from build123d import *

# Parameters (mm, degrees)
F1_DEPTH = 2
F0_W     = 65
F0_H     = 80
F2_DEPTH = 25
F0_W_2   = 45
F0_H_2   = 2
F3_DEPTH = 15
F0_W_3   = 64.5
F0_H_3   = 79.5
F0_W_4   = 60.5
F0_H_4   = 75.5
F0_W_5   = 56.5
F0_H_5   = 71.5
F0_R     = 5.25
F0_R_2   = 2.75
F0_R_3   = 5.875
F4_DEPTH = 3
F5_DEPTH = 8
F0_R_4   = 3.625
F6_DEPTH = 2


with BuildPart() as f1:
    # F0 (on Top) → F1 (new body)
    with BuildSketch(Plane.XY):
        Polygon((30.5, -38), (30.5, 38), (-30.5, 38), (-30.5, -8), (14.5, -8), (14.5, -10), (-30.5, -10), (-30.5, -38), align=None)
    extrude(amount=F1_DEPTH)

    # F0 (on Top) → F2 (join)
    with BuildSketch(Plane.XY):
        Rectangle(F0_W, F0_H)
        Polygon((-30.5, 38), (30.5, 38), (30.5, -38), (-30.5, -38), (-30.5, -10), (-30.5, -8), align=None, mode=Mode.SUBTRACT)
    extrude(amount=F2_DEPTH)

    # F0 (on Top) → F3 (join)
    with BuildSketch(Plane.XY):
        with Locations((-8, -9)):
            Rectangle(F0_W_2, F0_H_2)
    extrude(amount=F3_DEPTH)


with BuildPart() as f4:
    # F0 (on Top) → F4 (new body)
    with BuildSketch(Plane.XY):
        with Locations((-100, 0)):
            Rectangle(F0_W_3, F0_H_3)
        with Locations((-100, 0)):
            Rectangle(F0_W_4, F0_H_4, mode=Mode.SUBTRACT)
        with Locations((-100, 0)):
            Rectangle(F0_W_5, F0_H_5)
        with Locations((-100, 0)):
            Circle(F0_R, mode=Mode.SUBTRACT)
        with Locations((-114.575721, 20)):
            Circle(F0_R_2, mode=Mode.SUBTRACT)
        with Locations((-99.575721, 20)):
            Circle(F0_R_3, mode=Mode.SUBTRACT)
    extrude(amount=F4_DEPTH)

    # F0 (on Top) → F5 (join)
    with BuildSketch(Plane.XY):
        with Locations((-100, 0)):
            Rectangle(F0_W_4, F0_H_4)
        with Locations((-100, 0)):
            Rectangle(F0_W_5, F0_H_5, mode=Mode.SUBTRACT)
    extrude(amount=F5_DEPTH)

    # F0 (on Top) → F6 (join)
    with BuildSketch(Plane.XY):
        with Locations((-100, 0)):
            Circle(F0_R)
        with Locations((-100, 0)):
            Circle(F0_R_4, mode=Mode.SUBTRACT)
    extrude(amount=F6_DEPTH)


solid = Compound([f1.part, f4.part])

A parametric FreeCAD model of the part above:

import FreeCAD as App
import Part
import Sketcher

V = App.Vector
Q = App.Units.Quantity

doc = App.newDocument("Part")
body = doc.addObject("PartDesign::Body", "Body")

# Sketch on XY plane
sketch1 = doc.addObject("Sketcher::SketchObject", "Sketch")
body.addObject(sketch1)
sketch1.AttachmentSupport = (doc.XY_Plane, [""])
sketch1.MapMode = "FlatFace"
sketch1.addGeometry(Part.LineSegment(V(30.5, -38, 0), V(30.5, 38, 0)), False)
sketch1.addGeometry(Part.LineSegment(V(30.5, 38, 0), V(-30.5, 38, 0)), False)
sketch1.addGeometry(Part.LineSegment(V(-30.5, 38, 0), V(-30.5, -8, 0)), False)
sketch1.addGeometry(Part.LineSegment(V(-30.5, -8, 0), V(14.5, -8, 0)), False)
sketch1.addGeometry(Part.LineSegment(V(14.5, -8, 0), V(14.5, -10, 0)), False)
sketch1.addGeometry(Part.LineSegment(V(14.5, -10, 0), V(-30.5, -10, 0)), False)
sketch1.addGeometry(Part.LineSegment(V(-30.5, -10, 0), V(-30.5, -38, 0)), False)
sketch1.addGeometry(Part.LineSegment(V(-30.5, -38, 0), V(30.5, -38, 0)), False)
sketch1.addConstraint(Sketcher.Constraint("Coincident", 0, 2, 1, 1))
sketch1.addConstraint(Sketcher.Constraint("Coincident", 1, 2, 2, 1))
sketch1.addConstraint(Sketcher.Constraint("Coincident", 2, 2, 3, 1))
sketch1.addConstraint(Sketcher.Constraint("Coincident", 3, 2, 4, 1))
sketch1.addConstraint(Sketcher.Constraint("Coincident", 4, 2, 5, 1))
sketch1.addConstraint(Sketcher.Constraint("Coincident", 5, 2, 6, 1))
sketch1.addConstraint(Sketcher.Constraint("Coincident", 6, 2, 7, 1))
sketch1.addConstraint(Sketcher.Constraint("Coincident", 7, 2, 0, 1))
sketch1.addConstraint(Sketcher.Constraint("Vertical", 0))
sketch1.addConstraint(Sketcher.Constraint("Horizontal", 1))
sketch1.addConstraint(Sketcher.Constraint("Vertical", 2))
sketch1.addConstraint(Sketcher.Constraint("Horizontal", 3))
sketch1.addConstraint(Sketcher.Constraint("Vertical", 4))
sketch1.addConstraint(Sketcher.Constraint("Horizontal", 5))
sketch1.addConstraint(Sketcher.Constraint("Vertical", 6))
sketch1.addConstraint(Sketcher.Constraint("Horizontal", 7))
sketch1.addConstraint(Sketcher.Constraint("Symmetric", 0, 2, 6, 2, -1, 1))
sketch1.addConstraint(Sketcher.Constraint("Vertical", 2, 2, 5, 2))
sketch1.addConstraint(Sketcher.Constraint("DistanceX", 1, 2, 1, 1, Q("61 mm")))
sketch1.addConstraint(Sketcher.Constraint("DistanceX", 3, 1, 3, 2, Q("45 mm")))
sketch1.addConstraint(Sketcher.Constraint("DistanceY", 0, 1, 0, 2, Q("76 mm")))
sketch1.addConstraint(Sketcher.Constraint("DistanceY", 2, 2, 2, 1, Q("46 mm")))
sketch1.addConstraint(Sketcher.Constraint("DistanceY", 4, 2, 4, 1, Q("2 mm")))
pad1 = doc.addObject("PartDesign::Pad", "Pad")
body.addObject(pad1)
pad1.Profile = sketch1
pad1.Length = 2

# Sketch on XY plane
sketch2 = doc.addObject("Sketcher::SketchObject", "Sketch001")
body.addObject(sketch2)
sketch2.AttachmentSupport = (doc.XY_Plane, [""])
sketch2.MapMode = "FlatFace"
sketch2.addGeometry(Part.LineSegment(V(-32, 40, 0), V(-32, -40, 0)), False)
sketch2.addGeometry(Part.LineSegment(V(-32, -40, 0), V(32, -40, 0)), False)
sketch2.addGeometry(Part.LineSegment(V(32, -40, 0), V(32, 40, 0)), False)
sketch2.addGeometry(Part.LineSegment(V(32, 40, 0), V(-32, 40, 0)), False)
sketch2.addGeometry(Part.LineSegment(V(-30, -38, 0), V(-30, 38, 0)), False)
sketch2.addGeometry(Part.LineSegment(V(-30, 38, 0), V(30, 38, 0)), False)
sketch2.addGeometry(Part.LineSegment(V(30, 38, 0), V(30, -38, 0)), False)
sketch2.addGeometry(Part.LineSegment(V(30, -38, 0), V(-30, -38, 0)), False)
sketch2.addConstraint(Sketcher.Constraint("Coincident", 0, 2, 1, 1))
sketch2.addConstraint(Sketcher.Constraint("Coincident", 1, 2, 2, 1))
sketch2.addConstraint(Sketcher.Constraint("Coincident", 2, 2, 3, 1))
sketch2.addConstraint(Sketcher.Constraint("Coincident", 3, 2, 0, 1))
sketch2.addConstraint(Sketcher.Constraint("Coincident", 4, 2, 5, 1))
sketch2.addConstraint(Sketcher.Constraint("Coincident", 5, 2, 6, 1))
sketch2.addConstraint(Sketcher.Constraint("Coincident", 6, 2, 7, 1))
sketch2.addConstraint(Sketcher.Constraint("Coincident", 7, 2, 4, 1))
sketch2.addConstraint(Sketcher.Constraint("Vertical", 0))
sketch2.addConstraint(Sketcher.Constraint("Horizontal", 1))
sketch2.addConstraint(Sketcher.Constraint("Vertical", 2))
sketch2.addConstraint(Sketcher.Constraint("Horizontal", 3))
sketch2.addConstraint(Sketcher.Constraint("Vertical", 4))
sketch2.addConstraint(Sketcher.Constraint("Horizontal", 5))
sketch2.addConstraint(Sketcher.Constraint("Vertical", 6))
sketch2.addConstraint(Sketcher.Constraint("Horizontal", 7))
sketch2.addConstraint(Sketcher.Constraint("Symmetric", 0, 2, 2, 2, -1, 1))
sketch2.addConstraint(Sketcher.Constraint("Symmetric", 4, 2, 6, 2, -1, 1))
sketch2.addConstraint(Sketcher.Constraint("DistanceX", 1, 1, 1, 2, Q("65 mm")))
sketch2.addConstraint(Sketcher.Constraint("DistanceX", 5, 1, 5, 2, Q("61 mm")))
sketch2.addConstraint(Sketcher.Constraint("DistanceY", 0, 2, 0, 1, Q("80 mm")))
sketch2.addConstraint(Sketcher.Constraint("DistanceY", 4, 1, 4, 2, Q("76 mm")))
pad2 = doc.addObject("PartDesign::Pad", "Pad001")
body.addObject(pad2)
pad2.Profile = sketch2
pad2.Length = 25

# Sketch on XY plane
sketch3 = doc.addObject("Sketcher::SketchObject", "Sketch002")
body.addObject(sketch3)
sketch3.AttachmentSupport = (doc.XY_Plane, [""])
sketch3.MapMode = "FlatFace"
sketch3.addGeometry(Part.LineSegment(V(-30.5, -8, 0), V(-30.5, -10, 0)), False)
sketch3.addGeometry(Part.LineSegment(V(-30.5, -10, 0), V(14.5, -10, 0)), False)
sketch3.addGeometry(Part.LineSegment(V(14.5, -10, 0), V(14.5, -8, 0)), False)
sketch3.addGeometry(Part.LineSegment(V(14.5, -8, 0), V(-30.5, -8, 0)), False)
sketch3.addConstraint(Sketcher.Constraint("Coincident", 0, 2, 1, 1))
sketch3.addConstraint(Sketcher.Constraint("Coincident", 1, 2, 2, 1))
sketch3.addConstraint(Sketcher.Constraint("Coincident", 2, 2, 3, 1))
sketch3.addConstraint(Sketcher.Constraint("Coincident", 3, 2, 0, 1))
sketch3.addConstraint(Sketcher.Constraint("Vertical", 0))
sketch3.addConstraint(Sketcher.Constraint("Horizontal", 1))
sketch3.addConstraint(Sketcher.Constraint("Vertical", 2))
sketch3.addConstraint(Sketcher.Constraint("Horizontal", 3))
sketch3.addConstraint(Sketcher.Constraint("DistanceX", 1, 1, 1, 2, Q("45 mm")))
sketch3.addConstraint(Sketcher.Constraint("DistanceY", 0, 2, 0, 1, Q("2 mm")))
sketch3.addConstraint(Sketcher.Constraint("DistanceY", 0, 2, -1, 1, Q("10 mm")))
sketch3.addConstraint(Sketcher.Constraint("DistanceX", 0, 2, -1, 1, Q("30.5 mm")))
pad3 = doc.addObject("PartDesign::Pad", "Pad002")
body.addObject(pad3)
pad3.Profile = sketch3
pad3.Length = 15
body2 = doc.addObject("PartDesign::Body", "Body001")
body2.AllowCompound = True

# Sketch on XY plane
sketch4 = doc.addObject("Sketcher::SketchObject", "Sketch003")
body2.addObject(sketch4)
sketch4.AttachmentSupport = (doc.getObject("XY_Plane001"), [""])
sketch4.MapMode = "FlatFace"
sketch4.addGeometry(Part.LineSegment(V(-132.2, 39.8, 0), V(-132.2, -39.8, 0)), False)
sketch4.addGeometry(Part.LineSegment(V(-132.2, -39.8, 0), V(-67.8, -39.8, 0)), False)
sketch4.addGeometry(Part.LineSegment(V(-67.8, -39.8, 0), V(-67.8, 39.8, 0)), False)
sketch4.addGeometry(Part.LineSegment(V(-67.8, 39.8, 0), V(-132.2, 39.8, 0)), False)
sketch4.addGeometry(Part.LineSegment(V(-69.8, -37.8, 0), V(-130.2, -37.8, 0)), False)
sketch4.addGeometry(Part.LineSegment(V(-130.2, -37.8, 0), V(-130.2, 37.8, 0)), False)
sketch4.addGeometry(Part.LineSegment(V(-130.2, 37.8, 0), V(-69.8, 37.8, 0)), False)
sketch4.addGeometry(Part.LineSegment(V(-69.8, 37.8, 0), V(-69.8, -37.8, 0)), False)
sketch4.addGeometry(Part.LineSegment(V(-128.2, 35.8, 0), V(-128.2, -35.8, 0)), False)
sketch4.addGeometry(Part.LineSegment(V(-128.2, -35.8, 0), V(-71.8, -35.8, 0)), False)
sketch4.addGeometry(Part.LineSegment(V(-71.8, -35.8, 0), V(-71.8, 35.8, 0)), False)
sketch4.addGeometry(Part.LineSegment(V(-71.8, 35.8, 0), V(-128.2, 35.8, 0)), False)
sketch4.addGeometry(Part.Circle(V(-100, 0, 0), V(0, 0, 1), 5.2), False)
sketch4.addGeometry(Part.Circle(V(-114.6, 20, 0), V(0, 0, 1), 2.8), False)
sketch4.addGeometry(Part.Circle(V(-99.6, 20, 0), V(0, 0, 1), 5.9), False)
sketch4.addConstraint(Sketcher.Constraint("Coincident", 0, 2, 1, 1))
sketch4.addConstraint(Sketcher.Constraint("Coincident", 1, 2, 2, 1))
sketch4.addConstraint(Sketcher.Constraint("Coincident", 2, 2, 3, 1))
sketch4.addConstraint(Sketcher.Constraint("Coincident", 3, 2, 0, 1))
sketch4.addConstraint(Sketcher.Constraint("Coincident", 4, 2, 5, 1))
sketch4.addConstraint(Sketcher.Constraint("Coincident", 5, 2, 6, 1))
sketch4.addConstraint(Sketcher.Constraint("Coincident", 6, 2, 7, 1))
sketch4.addConstraint(Sketcher.Constraint("Coincident", 7, 2, 4, 1))
sketch4.addConstraint(Sketcher.Constraint("Coincident", 8, 2, 9, 1))
sketch4.addConstraint(Sketcher.Constraint("Coincident", 9, 2, 10, 1))
sketch4.addConstraint(Sketcher.Constraint("Coincident", 10, 2, 11, 1))
sketch4.addConstraint(Sketcher.Constraint("Coincident", 11, 2, 8, 1))
sketch4.addConstraint(Sketcher.Constraint("Vertical", 0))
sketch4.addConstraint(Sketcher.Constraint("Horizontal", 1))
sketch4.addConstraint(Sketcher.Constraint("Vertical", 2))
sketch4.addConstraint(Sketcher.Constraint("Horizontal", 3))
sketch4.addConstraint(Sketcher.Constraint("Horizontal", 4))
sketch4.addConstraint(Sketcher.Constraint("Vertical", 5))
sketch4.addConstraint(Sketcher.Constraint("Horizontal", 6))
sketch4.addConstraint(Sketcher.Constraint("Vertical", 7))
sketch4.addConstraint(Sketcher.Constraint("Vertical", 8))
sketch4.addConstraint(Sketcher.Constraint("Horizontal", 9))
sketch4.addConstraint(Sketcher.Constraint("Vertical", 10))
sketch4.addConstraint(Sketcher.Constraint("Horizontal", 11))
sketch4.addConstraint(Sketcher.Constraint("PointOnObject", 12, 3, -1))
sketch4.addConstraint(Sketcher.Constraint("Horizontal", 13, 3, 14, 3))
sketch4.addConstraint(Sketcher.Constraint("Diameter", 12, Q("10.5 mm")))
sketch4.addConstraint(Sketcher.Constraint("Diameter", 13, Q("5.5 mm")))
sketch4.addConstraint(Sketcher.Constraint("Diameter", 14, Q("11.75 mm")))
sketch4.addConstraint(Sketcher.Constraint("DistanceX", 1, 1, 1, 2, Q("64.5 mm")))
sketch4.addConstraint(Sketcher.Constraint("DistanceX", 4, 2, 4, 1, Q("60.5 mm")))
sketch4.addConstraint(Sketcher.Constraint("DistanceX", 9, 1, 9, 2, Q("56.5 mm")))
sketch4.addConstraint(Sketcher.Constraint("DistanceY", 0, 2, 0, 1, Q("79.5 mm")))
sketch4.addConstraint(Sketcher.Constraint("DistanceY", 5, 1, 5, 2, Q("75.5 mm")))
sketch4.addConstraint(Sketcher.Constraint("DistanceY", 8, 2, 8, 1, Q("71.5 mm")))
sketch4.addConstraint(Sketcher.Constraint("DistanceX", 12, 3, -1, 1, Q("100 mm")))
sketch4.addConstraint(Sketcher.Constraint("DistanceY", -1, 1, 13, 3, Q("20 mm")))
sketch4.addConstraint(Sketcher.Constraint("DistanceX", 13, 3, 14, 3, Q("15 mm")))
sketch4.addConstraint(Sketcher.Constraint("DistanceX", 0, 2, 4, 2, Q("2 mm")))
sketch4.addConstraint(Sketcher.Constraint("DistanceY", 0, 2, 4, 2, Q("2 mm")))
sketch4.addConstraint(Sketcher.Constraint("DistanceX", 4, 2, 8, 2, Q("2 mm")))
sketch4.addConstraint(Sketcher.Constraint("DistanceY", 4, 2, 8, 2, Q("2 mm")))
sketch4.addConstraint(Sketcher.Constraint("DistanceX", 0, 2, -1, 1, Q("132.25 mm")))
sketch4.addConstraint(Sketcher.Constraint("DistanceY", 0, 2, -1, 1, Q("39.75 mm")))
sketch4.addConstraint(Sketcher.Constraint("DistanceX", 13, 3, -1, 1, Q("114.575721 mm")))
pad4 = doc.addObject("PartDesign::Pad", "Pad003")
body2.addObject(pad4)
pad4.Profile = sketch4
pad4.Length = 3

# Sketch on XY plane
sketch5 = doc.addObject("Sketcher::SketchObject", "Sketch004")
body2.addObject(sketch5)
sketch5.AttachmentSupport = (doc.getObject("XY_Plane001"), [""])
sketch5.MapMode = "FlatFace"
sketch5.addGeometry(Part.LineSegment(V(-130, 38, 0), V(-130, -38, 0)), False)
sketch5.addGeometry(Part.LineSegment(V(-130, -38, 0), V(-70, -38, 0)), False)
sketch5.addGeometry(Part.LineSegment(V(-70, -38, 0), V(-70, 38, 0)), False)
sketch5.addGeometry(Part.LineSegment(V(-70, 38, 0), V(-130, 38, 0)), False)
sketch5.addGeometry(Part.LineSegment(V(-72, -36, 0), V(-128, -36, 0)), False)
sketch5.addGeometry(Part.LineSegment(V(-128, -36, 0), V(-128, 36, 0)), False)
sketch5.addGeometry(Part.LineSegment(V(-128, 36, 0), V(-72, 36, 0)), False)
sketch5.addGeometry(Part.LineSegment(V(-72, 36, 0), V(-72, -36, 0)), False)
sketch5.addConstraint(Sketcher.Constraint("Coincident", 0, 2, 1, 1))
sketch5.addConstraint(Sketcher.Constraint("Coincident", 1, 2, 2, 1))
sketch5.addConstraint(Sketcher.Constraint("Coincident", 2, 2, 3, 1))
sketch5.addConstraint(Sketcher.Constraint("Coincident", 3, 2, 0, 1))
sketch5.addConstraint(Sketcher.Constraint("Coincident", 4, 2, 5, 1))
sketch5.addConstraint(Sketcher.Constraint("Coincident", 5, 2, 6, 1))
sketch5.addConstraint(Sketcher.Constraint("Coincident", 6, 2, 7, 1))
sketch5.addConstraint(Sketcher.Constraint("Coincident", 7, 2, 4, 1))
sketch5.addConstraint(Sketcher.Constraint("Vertical", 0))
sketch5.addConstraint(Sketcher.Constraint("Horizontal", 1))
sketch5.addConstraint(Sketcher.Constraint("Vertical", 2))
sketch5.addConstraint(Sketcher.Constraint("Horizontal", 3))
sketch5.addConstraint(Sketcher.Constraint("Horizontal", 4))
sketch5.addConstraint(Sketcher.Constraint("Vertical", 5))
sketch5.addConstraint(Sketcher.Constraint("Horizontal", 6))
sketch5.addConstraint(Sketcher.Constraint("Vertical", 7))
sketch5.addConstraint(Sketcher.Constraint("DistanceX", 1, 1, 1, 2, Q("60.5 mm")))
sketch5.addConstraint(Sketcher.Constraint("DistanceX", 4, 2, 4, 1, Q("56.5 mm")))
sketch5.addConstraint(Sketcher.Constraint("DistanceY", 0, 2, 0, 1, Q("75.5 mm")))
sketch5.addConstraint(Sketcher.Constraint("DistanceY", 5, 1, 5, 2, Q("71.5 mm")))
sketch5.addConstraint(Sketcher.Constraint("DistanceX", 0, 2, 4, 2, Q("2 mm")))
sketch5.addConstraint(Sketcher.Constraint("DistanceY", 0, 2, 4, 2, Q("2 mm")))
sketch5.addConstraint(Sketcher.Constraint("DistanceX", 0, 2, -1, 1, Q("130.25 mm")))
sketch5.addConstraint(Sketcher.Constraint("DistanceY", 0, 2, -1, 1, Q("37.75 mm")))
pad5 = doc.addObject("PartDesign::Pad", "Pad004")
body2.addObject(pad5)
pad5.Profile = sketch5
pad5.Length = 8

# Sketch on XY plane
sketch6 = doc.addObject("Sketcher::SketchObject", "Sketch005")
body2.addObject(sketch6)
sketch6.AttachmentSupport = (doc.getObject("XY_Plane001"), [""])
sketch6.MapMode = "FlatFace"
sketch6.addGeometry(Part.Circle(V(-100, 0, 0), V(0, 0, 1), 5.2), False)
sketch6.addGeometry(Part.Circle(V(-100, 0, 0), V(0, 0, 1), 3.6), False)
sketch6.addConstraint(Sketcher.Constraint("Coincident", 1, 3, 0, 3))
sketch6.addConstraint(Sketcher.Constraint("PointOnObject", 0, 3, -1))
sketch6.addConstraint(Sketcher.Constraint("Diameter", 0, Q("10.5 mm")))
sketch6.addConstraint(Sketcher.Constraint("Diameter", 1, Q("7.25 mm")))
sketch6.addConstraint(Sketcher.Constraint("DistanceX", 0, 3, -1, 1, Q("100 mm")))
pad6 = doc.addObject("PartDesign::Pad", "Pad005")
body2.addObject(pad6)
pad6.Profile = sketch6
pad6.Length = 2

doc.recompute()
